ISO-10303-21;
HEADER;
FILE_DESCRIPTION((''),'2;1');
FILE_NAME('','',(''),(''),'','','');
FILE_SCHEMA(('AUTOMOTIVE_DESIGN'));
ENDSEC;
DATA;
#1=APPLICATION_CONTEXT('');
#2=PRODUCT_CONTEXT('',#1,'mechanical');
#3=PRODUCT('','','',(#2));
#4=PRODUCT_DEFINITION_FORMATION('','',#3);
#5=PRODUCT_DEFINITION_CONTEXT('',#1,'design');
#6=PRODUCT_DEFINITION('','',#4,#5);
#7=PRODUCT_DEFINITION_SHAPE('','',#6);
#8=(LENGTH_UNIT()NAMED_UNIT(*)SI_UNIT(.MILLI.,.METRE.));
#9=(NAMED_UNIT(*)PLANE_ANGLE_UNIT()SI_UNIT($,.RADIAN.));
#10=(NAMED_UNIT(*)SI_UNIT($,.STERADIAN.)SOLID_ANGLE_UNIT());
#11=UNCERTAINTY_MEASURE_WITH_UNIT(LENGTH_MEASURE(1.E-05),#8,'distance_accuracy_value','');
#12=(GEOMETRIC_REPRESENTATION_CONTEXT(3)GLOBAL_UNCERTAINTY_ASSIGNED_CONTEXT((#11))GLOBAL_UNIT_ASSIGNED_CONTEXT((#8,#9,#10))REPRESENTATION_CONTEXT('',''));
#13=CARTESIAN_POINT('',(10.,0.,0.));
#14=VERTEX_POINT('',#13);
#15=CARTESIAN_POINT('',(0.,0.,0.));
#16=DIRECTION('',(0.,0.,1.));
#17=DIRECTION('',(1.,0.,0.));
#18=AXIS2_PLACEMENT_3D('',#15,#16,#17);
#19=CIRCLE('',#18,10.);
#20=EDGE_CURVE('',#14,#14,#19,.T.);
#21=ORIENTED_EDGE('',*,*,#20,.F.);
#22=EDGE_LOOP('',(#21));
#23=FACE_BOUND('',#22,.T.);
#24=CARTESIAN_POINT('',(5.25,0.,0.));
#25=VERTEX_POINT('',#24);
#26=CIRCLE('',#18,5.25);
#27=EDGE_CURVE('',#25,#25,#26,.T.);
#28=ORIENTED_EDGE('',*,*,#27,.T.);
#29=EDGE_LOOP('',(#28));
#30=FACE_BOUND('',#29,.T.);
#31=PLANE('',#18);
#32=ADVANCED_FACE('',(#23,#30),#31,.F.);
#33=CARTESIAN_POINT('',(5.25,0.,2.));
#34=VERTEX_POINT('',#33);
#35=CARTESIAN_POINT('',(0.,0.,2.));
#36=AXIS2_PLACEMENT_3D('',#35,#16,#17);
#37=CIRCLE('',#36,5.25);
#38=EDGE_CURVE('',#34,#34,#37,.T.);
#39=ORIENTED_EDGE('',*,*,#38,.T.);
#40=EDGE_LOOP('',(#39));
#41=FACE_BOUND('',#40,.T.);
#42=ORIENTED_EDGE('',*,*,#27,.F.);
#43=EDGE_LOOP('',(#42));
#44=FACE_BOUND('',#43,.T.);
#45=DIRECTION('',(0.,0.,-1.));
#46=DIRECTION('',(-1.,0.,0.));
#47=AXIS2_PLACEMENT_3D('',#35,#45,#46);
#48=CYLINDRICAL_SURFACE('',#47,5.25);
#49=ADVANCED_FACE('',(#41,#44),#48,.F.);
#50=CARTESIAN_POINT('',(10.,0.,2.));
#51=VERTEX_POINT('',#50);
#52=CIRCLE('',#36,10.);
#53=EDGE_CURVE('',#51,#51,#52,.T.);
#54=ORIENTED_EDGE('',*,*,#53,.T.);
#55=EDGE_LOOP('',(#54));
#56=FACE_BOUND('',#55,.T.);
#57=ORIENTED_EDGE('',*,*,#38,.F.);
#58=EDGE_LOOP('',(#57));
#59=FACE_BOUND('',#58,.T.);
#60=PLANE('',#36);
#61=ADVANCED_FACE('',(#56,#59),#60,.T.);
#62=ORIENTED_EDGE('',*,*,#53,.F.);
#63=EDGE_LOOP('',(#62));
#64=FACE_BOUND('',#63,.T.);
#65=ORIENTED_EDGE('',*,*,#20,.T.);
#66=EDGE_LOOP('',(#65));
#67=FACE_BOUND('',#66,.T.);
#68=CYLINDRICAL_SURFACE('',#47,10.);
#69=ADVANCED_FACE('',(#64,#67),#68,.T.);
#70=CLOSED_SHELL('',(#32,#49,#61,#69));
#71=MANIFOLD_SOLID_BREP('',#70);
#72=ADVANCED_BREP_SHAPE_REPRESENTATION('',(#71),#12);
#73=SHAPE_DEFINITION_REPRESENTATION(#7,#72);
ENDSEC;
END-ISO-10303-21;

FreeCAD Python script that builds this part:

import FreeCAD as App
import Part
import Sketcher

doc = App.newDocument("Part")
body = doc.addObject("PartDesign::Body", "Body")

sketch1 = body.newObject("Sketcher::SketchObject", "Sketch")
sketch1.AttachmentSupport = (doc.getObject("XY_Plane"), [""])
sketch1.MapMode = "FlatFace"
sketch1.addGeometry([
    Part.Circle(App.Vector(0, 0, 0), App.Vector(0, 0, 1), 10),
    Part.Circle(App.Vector(0, 0, 0), App.Vector(0, 0, 1), 5),
], False)
sketch1.addConstraint([
    Sketcher.Constraint("Coincident", 0, 3, -1, 1),
    Sketcher.Constraint("Coincident", 1, 3, -1, 1),
    Sketcher.Constraint("Diameter", 0, 20.0),
    Sketcher.Constraint("Diameter", 1, 10.5),
])
pad1 = body.newObject("PartDesign::Pad", "Pad")
pad1.Profile = sketch1
pad1.Length = 2

doc.recompute()
